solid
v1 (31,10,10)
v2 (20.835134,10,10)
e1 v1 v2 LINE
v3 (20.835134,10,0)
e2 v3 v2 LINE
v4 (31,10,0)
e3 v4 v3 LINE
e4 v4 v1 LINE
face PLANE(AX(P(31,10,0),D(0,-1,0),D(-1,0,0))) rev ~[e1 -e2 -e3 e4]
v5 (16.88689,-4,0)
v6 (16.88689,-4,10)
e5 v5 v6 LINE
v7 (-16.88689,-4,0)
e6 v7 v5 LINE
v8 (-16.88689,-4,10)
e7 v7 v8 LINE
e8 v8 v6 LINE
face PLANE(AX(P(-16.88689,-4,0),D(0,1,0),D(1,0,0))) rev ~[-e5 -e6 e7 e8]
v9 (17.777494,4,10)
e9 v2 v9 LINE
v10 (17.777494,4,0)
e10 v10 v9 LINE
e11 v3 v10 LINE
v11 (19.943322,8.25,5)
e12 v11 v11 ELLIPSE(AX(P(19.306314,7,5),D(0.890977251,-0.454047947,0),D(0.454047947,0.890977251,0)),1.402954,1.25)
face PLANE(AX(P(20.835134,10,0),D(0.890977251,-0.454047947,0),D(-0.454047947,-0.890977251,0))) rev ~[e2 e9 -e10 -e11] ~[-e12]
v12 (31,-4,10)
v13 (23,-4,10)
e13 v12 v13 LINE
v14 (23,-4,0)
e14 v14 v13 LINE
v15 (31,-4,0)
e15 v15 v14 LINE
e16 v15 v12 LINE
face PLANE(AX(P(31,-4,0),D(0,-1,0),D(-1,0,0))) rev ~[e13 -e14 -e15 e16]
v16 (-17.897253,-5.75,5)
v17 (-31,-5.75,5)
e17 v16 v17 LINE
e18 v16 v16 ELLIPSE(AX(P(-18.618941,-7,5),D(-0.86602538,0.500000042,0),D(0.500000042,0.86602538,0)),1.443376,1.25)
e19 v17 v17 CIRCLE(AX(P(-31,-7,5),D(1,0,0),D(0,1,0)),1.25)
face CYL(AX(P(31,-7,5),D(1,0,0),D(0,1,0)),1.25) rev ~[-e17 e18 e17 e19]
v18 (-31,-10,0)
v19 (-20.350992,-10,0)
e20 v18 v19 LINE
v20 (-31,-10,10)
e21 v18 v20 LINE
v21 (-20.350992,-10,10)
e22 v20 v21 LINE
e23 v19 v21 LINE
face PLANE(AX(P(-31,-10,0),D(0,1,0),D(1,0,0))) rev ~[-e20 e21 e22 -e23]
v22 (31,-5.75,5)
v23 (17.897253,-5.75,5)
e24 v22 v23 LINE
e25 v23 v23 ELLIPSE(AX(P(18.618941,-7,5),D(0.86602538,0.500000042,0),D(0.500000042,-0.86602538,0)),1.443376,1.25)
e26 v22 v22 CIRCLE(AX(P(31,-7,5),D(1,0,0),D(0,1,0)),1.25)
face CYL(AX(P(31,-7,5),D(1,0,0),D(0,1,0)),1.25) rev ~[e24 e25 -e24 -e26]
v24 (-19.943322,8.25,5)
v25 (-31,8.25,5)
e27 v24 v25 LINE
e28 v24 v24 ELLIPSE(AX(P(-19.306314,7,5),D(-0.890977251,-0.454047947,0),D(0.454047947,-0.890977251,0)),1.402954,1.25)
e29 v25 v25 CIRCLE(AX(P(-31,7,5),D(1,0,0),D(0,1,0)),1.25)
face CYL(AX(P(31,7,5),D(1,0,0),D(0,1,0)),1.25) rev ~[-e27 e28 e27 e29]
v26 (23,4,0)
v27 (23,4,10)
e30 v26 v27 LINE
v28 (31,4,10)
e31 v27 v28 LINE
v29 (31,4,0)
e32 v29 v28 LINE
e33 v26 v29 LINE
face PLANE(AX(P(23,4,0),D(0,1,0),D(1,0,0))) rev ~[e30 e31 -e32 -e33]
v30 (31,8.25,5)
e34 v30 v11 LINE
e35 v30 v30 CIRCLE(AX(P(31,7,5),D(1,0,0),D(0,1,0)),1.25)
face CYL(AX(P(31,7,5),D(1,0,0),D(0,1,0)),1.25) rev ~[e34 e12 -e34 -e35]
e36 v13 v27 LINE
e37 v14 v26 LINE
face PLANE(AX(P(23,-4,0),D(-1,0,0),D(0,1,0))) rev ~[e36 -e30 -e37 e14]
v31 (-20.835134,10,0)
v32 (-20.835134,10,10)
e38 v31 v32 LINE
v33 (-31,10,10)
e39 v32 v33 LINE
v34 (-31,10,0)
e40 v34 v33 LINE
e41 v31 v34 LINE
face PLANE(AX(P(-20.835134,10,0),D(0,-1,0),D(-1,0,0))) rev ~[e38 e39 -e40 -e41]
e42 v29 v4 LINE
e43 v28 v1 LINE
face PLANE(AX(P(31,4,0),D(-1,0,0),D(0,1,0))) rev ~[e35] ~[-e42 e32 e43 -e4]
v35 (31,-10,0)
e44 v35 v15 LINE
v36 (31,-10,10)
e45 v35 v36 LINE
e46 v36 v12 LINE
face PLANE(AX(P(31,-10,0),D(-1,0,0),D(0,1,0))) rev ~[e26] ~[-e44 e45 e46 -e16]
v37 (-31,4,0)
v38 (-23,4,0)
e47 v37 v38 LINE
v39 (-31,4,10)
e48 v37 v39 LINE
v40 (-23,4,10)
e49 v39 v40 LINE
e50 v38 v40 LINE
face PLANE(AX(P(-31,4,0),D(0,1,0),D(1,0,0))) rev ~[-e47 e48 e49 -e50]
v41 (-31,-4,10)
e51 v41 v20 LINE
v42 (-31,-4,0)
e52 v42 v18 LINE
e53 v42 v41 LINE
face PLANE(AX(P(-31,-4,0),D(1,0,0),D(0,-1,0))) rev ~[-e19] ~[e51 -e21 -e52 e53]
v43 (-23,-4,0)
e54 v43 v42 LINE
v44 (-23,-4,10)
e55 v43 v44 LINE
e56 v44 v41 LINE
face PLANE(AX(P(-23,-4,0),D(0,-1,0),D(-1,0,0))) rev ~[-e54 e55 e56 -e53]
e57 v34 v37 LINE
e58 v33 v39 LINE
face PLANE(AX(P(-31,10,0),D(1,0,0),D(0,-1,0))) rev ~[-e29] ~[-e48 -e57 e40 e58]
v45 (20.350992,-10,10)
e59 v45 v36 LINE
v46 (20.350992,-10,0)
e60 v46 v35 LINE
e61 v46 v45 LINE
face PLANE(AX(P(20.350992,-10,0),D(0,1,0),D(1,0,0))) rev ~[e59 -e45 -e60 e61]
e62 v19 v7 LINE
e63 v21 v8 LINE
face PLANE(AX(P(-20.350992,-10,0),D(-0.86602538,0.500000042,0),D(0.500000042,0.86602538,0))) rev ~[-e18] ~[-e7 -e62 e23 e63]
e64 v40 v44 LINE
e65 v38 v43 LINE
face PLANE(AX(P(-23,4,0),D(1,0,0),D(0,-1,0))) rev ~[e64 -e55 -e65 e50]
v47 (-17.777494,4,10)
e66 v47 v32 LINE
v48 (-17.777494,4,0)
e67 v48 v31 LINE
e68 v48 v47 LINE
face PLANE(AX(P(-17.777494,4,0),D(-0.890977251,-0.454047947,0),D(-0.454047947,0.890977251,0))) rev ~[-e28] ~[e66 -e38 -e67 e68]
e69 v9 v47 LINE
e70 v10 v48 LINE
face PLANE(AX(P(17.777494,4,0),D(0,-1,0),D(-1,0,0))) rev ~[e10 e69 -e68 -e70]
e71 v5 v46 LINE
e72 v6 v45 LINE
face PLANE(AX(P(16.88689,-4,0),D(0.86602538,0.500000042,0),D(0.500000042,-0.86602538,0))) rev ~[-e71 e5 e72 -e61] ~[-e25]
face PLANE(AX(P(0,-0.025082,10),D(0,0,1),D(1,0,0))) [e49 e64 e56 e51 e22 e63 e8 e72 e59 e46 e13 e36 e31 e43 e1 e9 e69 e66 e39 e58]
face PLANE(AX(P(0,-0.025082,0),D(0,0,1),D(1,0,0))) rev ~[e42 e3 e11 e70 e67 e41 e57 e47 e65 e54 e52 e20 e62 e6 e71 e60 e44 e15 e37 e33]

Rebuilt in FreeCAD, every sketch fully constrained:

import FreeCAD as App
import Part
import Sketcher
Q = App.Units.Quantity


def add_polygon(sketch, points):
    """Adds a closed chain of lines whose ends are joined by coincident constraints."""
    first, n = sketch.GeometryCount, len(points)
    for a, b in zip(points, points[1:] + points[:1]):
        sketch.addGeometry(Part.LineSegment(App.Vector(*a, 0), App.Vector(*b, 0)), False)
    for i in range(n):
        sketch.addConstraint(Sketcher.Constraint("Coincident", first + i, 2, first + (i + 1) % n, 1))

doc = App.newDocument("Part")
body = doc.addObject("PartDesign::Body", "Body")

# Sketch on XY plane
sketch1 = doc.addObject("Sketcher::SketchObject", "Sketch")
body.addObject(sketch1)
sketch1.AttachmentSupport = (doc.XY_Plane, [""])
sketch1.MapMode = "FlatFace"
add_polygon(sketch1, [(31, 4), (31, 10), (21, 10), (18, 4), (-18, 4), (-21, 10), (-31, 10), (-31, 4), (-23, 4), (-23, -4), (-31, -4), (-31, -10), (-20, -10), (-17, -4), (17, -4), (20, -10), (31, -10), (31, -4), (23, -4), (23, 4)])  # lines 0-19
sketch1.addConstraint(Sketcher.Constraint("Vertical", 0))
sketch1.addConstraint(Sketcher.Constraint("Horizontal", 1))
sketch1.addConstraint(Sketcher.Constraint("Horizontal", 3))
sketch1.addConstraint(Sketcher.Constraint("Horizontal", 5))
sketch1.addConstraint(Sketcher.Constraint("Vertical", 6))
sketch1.addConstraint(Sketcher.Constraint("Horizontal", 7))
sketch1.addConstraint(Sketcher.Constraint("Vertical", 8))
sketch1.addConstraint(Sketcher.Constraint("Horizontal", 9))
sketch1.addConstraint(Sketcher.Constraint("Vertical", 10))
sketch1.addConstraint(Sketcher.Constraint("Horizontal", 11))
sketch1.addConstraint(Sketcher.Constraint("Horizontal", 13))
sketch1.addConstraint(Sketcher.Constraint("Horizontal", 15))
sketch1.addConstraint(Sketcher.Constraint("Vertical", 16))
sketch1.addConstraint(Sketcher.Constraint("Horizontal", 17))
sketch1.addConstraint(Sketcher.Constraint("Vertical", 18))
sketch1.addConstraint(Sketcher.Constraint("Horizontal", 19))
sketch1.addConstraint(Sketcher.Constraint("Symmetric", 0, 2, 10, 2, -1, 1))
sketch1.addConstraint(Sketcher.Constraint("Symmetric", 5, 2, 15, 2, -1, 1))
sketch1.addConstraint(Sketcher.Constraint("Symmetric", 7, 2, 17, 2, -1, 1))
sketch1.addConstraint(Sketcher.Constraint("Symmetric", 1, 2, 4, 2, -2))
sketch1.addConstraint(Sketcher.Constraint("Symmetric", 9, 2, 16, 2, -2))
sketch1.addConstraint(Sketcher.Constraint("Horizontal", 3, 2, 6, 2))
sketch1.addConstraint(Sketcher.Constraint("Horizontal", 9, 2, 12, 2))
sketch1.addConstraint(Sketcher.Constraint("Horizontal", 7, 2, 18, 2))
sketch1.addConstraint(Sketcher.Constraint("Equal", 11, 15))
sketch1.addConstraint(Sketcher.Constraint("Equal", 19, 8))
sketch1.addConstraint(Sketcher.Constraint("Equal", 2, 4))
sketch1.addConstraint(Sketcher.Constraint("Equal", 12, 14))
sketch1.addConstraint(Sketcher.Constraint("DistanceX", 7, 1, 7, 2, 8.0))
sketch1.addConstraint(Sketcher.Constraint("DistanceY", 0, 1, 0, 2, 6.0))
sketch1.addConstraint(Sketcher.Constraint("Angle", 12, Q("59.999997 deg")))
sketch1.addConstraint(Sketcher.Constraint("DistanceX", -1, 1, 0, 2, 31.0))
sketch1.addConstraint(Sketcher.Constraint("DistanceX", 3, 2, 3, 1, 35.554988))
sketch1.addConstraint(Sketcher.Constraint("DistanceX", 13, 1, 13, 2, 33.77378))
sketch1.addConstraint(Sketcher.Constraint("Distance", 2, 6.734179))
pad1 = doc.addObject("PartDesign::Pad", "Pad")
body.addObject(pad1)
pad1.Profile = sketch1
pad1.Length = 10

# Sketch on YZ plane
sketch2 = doc.addObject("Sketcher::SketchObject", "Sketch001")
body.addObject(sketch2)
sketch2.AttachmentSupport = (doc.YZ_Plane, [""])
sketch2.MapMode = "FlatFace"
sketch2.AttachmentOffset = App.Placement(App.Vector(0, 0, 31), App.Rotation())
sketch2.addGeometry(Part.Circle(App.Vector(-7, 5, 0), App.Vector(0, 0, 1), 1.2), False)
sketch2.addGeometry(Part.Circle(App.Vector(7, 5, 0), App.Vector(0, 0, 1), 1.2), False)
sketch2.addConstraint(Sketcher.Constraint("Equal", 0, 1))
sketch2.addConstraint(Sketcher.Constraint("Symmetric", 0, 3, 1, 3, -2))
sketch2.addConstraint(Sketcher.Constraint("Diameter", 0, 2.5))
sketch2.addConstraint(Sketcher.Constraint("DistanceX", 0, 3, -1, 1, 7.0))
sketch2.addConstraint(Sketcher.Constraint("DistanceY", -1, 1, 0, 3, 5.0))
pocket1 = doc.addObject("PartDesign::Pocket", "Pocket")
body.addObject(pocket1)
pocket1.Profile = sketch2
pocket1.Type = "ThroughAll"

doc.recompute()
